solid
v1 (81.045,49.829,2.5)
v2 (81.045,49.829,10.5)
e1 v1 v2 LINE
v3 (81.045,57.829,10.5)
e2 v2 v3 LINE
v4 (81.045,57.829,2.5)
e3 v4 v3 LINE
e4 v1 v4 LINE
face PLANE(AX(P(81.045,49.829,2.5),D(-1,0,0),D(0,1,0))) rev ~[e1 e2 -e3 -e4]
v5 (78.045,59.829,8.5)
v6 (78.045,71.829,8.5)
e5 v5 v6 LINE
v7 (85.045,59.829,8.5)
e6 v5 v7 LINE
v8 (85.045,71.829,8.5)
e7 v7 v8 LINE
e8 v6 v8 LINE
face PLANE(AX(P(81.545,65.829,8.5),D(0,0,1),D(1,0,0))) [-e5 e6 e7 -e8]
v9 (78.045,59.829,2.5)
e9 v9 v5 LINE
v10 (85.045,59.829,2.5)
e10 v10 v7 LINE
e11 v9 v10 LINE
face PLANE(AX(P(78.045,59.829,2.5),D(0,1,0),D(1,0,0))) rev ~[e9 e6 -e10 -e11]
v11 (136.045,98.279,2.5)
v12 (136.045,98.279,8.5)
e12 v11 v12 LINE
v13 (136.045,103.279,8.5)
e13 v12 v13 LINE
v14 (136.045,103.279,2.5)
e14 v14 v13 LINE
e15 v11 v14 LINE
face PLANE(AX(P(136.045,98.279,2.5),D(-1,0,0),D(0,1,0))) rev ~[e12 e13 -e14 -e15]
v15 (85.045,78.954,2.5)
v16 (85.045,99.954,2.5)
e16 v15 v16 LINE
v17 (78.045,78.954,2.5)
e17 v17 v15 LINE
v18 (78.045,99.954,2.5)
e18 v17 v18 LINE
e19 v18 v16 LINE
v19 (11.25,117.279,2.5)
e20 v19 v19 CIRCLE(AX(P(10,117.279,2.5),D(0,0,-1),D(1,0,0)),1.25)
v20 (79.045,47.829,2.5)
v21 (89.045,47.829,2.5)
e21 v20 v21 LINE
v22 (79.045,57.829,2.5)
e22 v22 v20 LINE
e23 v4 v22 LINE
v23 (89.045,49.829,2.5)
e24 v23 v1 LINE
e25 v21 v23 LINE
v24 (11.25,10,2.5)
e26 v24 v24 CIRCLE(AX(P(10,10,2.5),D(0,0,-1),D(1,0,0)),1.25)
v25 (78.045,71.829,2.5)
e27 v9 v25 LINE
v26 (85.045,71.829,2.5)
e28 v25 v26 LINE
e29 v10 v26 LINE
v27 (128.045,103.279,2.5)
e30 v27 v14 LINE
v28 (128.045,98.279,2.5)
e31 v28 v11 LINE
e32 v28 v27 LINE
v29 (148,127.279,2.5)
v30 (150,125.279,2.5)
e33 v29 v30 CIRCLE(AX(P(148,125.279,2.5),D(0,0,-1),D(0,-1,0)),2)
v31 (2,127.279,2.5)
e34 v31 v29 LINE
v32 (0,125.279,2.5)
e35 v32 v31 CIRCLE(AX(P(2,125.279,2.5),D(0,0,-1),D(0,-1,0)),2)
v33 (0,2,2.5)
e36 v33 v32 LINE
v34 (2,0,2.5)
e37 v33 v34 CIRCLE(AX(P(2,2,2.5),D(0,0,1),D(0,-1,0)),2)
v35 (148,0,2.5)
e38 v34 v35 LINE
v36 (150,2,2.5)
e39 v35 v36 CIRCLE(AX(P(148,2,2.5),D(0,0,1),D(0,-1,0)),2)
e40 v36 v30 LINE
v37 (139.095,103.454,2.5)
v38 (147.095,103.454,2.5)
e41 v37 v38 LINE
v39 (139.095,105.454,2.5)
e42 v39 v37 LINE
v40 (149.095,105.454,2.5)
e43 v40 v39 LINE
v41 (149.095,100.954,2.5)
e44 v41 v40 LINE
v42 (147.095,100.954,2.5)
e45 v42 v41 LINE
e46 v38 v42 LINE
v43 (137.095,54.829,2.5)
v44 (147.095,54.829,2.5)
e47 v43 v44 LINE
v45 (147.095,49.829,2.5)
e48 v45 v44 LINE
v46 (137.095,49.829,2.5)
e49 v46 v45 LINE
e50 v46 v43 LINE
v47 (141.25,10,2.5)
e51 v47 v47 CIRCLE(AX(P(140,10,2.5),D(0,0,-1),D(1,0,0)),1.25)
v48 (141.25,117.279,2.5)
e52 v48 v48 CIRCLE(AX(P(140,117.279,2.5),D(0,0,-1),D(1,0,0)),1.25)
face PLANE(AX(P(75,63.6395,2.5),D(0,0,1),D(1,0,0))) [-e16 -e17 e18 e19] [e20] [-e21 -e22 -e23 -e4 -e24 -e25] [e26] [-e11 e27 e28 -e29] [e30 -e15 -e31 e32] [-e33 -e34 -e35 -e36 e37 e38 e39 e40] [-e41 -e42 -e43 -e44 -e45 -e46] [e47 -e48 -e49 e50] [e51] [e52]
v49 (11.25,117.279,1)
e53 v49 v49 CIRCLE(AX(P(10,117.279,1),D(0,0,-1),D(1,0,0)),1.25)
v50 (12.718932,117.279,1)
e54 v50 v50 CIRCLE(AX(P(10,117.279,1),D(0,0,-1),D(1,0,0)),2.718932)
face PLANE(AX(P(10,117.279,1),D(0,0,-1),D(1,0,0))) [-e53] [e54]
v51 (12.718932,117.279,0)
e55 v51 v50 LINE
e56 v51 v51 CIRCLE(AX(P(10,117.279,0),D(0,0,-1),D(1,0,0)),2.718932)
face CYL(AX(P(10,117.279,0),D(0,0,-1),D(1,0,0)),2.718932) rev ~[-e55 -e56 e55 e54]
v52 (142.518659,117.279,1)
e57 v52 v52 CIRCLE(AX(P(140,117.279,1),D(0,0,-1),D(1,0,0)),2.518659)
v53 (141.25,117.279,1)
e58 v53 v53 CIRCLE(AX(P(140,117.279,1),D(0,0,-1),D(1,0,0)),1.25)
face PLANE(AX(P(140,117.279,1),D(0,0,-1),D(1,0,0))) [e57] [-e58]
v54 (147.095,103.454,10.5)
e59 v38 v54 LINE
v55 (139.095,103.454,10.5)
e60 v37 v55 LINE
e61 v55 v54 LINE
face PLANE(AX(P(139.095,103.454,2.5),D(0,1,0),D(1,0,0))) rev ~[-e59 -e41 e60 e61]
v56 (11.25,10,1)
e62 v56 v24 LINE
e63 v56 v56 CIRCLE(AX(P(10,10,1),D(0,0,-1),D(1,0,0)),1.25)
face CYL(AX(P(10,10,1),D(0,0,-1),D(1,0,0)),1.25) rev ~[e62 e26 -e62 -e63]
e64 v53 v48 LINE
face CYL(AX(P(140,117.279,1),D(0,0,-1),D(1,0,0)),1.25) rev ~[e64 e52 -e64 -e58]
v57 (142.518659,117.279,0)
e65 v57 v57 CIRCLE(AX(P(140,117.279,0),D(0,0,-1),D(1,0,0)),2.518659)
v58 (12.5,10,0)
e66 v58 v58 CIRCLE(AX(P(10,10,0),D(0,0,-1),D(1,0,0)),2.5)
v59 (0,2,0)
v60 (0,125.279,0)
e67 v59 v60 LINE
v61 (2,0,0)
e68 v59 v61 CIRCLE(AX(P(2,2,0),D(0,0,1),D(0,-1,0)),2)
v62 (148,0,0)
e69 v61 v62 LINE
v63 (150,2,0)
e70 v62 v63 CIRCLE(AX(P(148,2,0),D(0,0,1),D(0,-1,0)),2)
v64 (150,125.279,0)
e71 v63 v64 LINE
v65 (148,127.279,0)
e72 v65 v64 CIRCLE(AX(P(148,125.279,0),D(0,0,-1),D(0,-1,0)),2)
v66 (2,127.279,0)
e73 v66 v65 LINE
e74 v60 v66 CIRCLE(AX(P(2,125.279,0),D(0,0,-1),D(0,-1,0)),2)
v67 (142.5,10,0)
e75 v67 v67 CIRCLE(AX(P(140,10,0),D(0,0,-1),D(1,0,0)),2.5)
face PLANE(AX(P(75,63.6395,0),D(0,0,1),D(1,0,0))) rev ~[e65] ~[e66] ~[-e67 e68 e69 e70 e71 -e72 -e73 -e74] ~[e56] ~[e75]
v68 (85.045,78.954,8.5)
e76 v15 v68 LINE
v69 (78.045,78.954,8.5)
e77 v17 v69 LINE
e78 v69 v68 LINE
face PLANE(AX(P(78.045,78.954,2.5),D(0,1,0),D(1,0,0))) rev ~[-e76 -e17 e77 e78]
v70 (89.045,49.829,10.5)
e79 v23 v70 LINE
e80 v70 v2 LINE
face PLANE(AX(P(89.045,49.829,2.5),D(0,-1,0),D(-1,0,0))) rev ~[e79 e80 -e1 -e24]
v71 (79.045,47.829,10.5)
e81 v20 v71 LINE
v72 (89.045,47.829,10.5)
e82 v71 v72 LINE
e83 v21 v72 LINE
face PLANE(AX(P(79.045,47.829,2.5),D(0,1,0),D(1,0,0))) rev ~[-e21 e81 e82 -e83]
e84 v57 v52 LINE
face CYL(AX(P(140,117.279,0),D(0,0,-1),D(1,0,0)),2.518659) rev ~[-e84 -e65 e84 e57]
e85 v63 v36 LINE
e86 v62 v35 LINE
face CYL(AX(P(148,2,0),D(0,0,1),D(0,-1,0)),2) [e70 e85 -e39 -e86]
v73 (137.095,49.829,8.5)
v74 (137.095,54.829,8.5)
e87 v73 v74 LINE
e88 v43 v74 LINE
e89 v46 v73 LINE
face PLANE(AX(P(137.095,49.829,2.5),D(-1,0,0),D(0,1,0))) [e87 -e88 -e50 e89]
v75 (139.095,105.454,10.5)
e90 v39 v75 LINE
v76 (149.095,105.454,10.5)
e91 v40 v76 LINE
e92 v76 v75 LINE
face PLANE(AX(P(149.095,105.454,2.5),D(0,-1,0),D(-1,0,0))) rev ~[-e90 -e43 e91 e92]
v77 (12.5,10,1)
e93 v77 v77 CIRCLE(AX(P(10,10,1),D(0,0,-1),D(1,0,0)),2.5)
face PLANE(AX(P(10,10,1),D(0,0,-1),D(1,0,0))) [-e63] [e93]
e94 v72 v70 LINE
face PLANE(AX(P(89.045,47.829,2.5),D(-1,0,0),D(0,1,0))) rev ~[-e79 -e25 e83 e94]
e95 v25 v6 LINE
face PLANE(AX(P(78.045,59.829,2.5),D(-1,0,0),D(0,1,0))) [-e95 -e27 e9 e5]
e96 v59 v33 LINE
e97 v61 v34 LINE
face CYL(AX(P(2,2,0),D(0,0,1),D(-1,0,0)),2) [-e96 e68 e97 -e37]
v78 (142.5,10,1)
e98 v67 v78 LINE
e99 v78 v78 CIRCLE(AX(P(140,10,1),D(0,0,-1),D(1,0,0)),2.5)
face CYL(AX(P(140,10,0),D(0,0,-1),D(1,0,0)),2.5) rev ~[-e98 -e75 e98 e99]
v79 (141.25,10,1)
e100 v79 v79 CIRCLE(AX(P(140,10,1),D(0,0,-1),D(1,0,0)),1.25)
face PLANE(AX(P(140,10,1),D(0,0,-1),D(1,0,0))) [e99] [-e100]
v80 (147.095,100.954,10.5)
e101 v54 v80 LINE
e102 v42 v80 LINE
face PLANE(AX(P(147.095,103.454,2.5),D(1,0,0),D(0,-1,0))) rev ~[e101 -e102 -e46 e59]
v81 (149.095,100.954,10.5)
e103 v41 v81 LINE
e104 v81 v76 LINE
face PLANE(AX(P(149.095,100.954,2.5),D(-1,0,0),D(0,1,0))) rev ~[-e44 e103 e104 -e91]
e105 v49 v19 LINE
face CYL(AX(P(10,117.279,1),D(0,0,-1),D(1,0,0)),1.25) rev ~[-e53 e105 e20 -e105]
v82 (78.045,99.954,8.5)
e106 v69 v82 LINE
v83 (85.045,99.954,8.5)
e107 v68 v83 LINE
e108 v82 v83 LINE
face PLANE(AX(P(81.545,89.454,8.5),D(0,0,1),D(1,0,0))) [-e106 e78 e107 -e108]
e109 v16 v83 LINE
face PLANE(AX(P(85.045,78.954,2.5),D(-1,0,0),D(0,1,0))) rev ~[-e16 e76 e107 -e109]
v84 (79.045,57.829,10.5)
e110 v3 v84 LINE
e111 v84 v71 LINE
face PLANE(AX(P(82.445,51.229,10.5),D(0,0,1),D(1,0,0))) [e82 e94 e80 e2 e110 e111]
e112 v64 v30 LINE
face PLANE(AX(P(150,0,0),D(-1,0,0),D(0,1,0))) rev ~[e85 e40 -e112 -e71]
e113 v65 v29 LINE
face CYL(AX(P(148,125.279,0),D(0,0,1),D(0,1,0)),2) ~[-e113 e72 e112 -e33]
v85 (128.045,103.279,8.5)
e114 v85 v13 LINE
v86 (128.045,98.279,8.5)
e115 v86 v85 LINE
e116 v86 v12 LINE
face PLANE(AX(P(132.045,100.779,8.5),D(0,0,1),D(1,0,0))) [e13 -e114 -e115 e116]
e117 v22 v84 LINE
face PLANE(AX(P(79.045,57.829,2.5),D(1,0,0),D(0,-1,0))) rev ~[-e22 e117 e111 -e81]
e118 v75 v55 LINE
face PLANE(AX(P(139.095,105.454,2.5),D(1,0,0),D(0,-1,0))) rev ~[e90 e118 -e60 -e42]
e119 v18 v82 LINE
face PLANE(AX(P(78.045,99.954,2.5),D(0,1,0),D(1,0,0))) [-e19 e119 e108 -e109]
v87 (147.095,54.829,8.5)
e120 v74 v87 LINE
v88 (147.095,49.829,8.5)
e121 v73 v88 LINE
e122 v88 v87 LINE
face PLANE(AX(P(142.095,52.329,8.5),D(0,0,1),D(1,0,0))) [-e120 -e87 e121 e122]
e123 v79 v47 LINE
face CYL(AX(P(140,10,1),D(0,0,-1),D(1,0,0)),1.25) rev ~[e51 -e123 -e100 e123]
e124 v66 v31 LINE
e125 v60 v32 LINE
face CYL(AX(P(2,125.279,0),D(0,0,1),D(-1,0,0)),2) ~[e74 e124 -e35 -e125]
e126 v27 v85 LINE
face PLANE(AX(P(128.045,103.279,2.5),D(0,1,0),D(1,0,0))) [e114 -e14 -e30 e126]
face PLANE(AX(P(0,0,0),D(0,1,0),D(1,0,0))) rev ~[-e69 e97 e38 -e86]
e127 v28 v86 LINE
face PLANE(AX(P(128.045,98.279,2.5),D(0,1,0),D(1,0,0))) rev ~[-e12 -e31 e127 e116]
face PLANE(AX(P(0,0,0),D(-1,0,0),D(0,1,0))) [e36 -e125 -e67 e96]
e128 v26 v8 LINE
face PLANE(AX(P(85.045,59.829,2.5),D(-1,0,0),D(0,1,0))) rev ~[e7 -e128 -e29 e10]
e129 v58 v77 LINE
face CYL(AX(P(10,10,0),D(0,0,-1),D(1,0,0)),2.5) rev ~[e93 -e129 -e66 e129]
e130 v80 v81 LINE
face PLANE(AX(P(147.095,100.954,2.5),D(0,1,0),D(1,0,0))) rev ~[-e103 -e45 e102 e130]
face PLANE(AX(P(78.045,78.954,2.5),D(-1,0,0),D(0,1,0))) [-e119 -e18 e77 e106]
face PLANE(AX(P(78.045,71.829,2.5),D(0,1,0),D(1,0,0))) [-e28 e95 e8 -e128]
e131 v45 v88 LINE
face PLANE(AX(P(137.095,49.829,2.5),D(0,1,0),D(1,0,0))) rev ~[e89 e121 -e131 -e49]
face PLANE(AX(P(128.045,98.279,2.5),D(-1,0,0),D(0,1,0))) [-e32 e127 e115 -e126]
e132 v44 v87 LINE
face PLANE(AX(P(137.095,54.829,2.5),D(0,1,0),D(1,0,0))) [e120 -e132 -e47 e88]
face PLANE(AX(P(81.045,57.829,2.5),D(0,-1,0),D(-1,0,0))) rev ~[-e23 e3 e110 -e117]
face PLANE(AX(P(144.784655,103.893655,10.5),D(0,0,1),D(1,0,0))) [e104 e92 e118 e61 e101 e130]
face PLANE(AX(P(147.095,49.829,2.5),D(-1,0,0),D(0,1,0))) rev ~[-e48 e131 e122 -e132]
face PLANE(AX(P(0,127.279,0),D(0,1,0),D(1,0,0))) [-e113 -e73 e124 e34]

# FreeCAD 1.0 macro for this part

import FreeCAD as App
import Part
import Sketcher
from FreeCAD import Vector


def edges_at(feature, points):
    """Names of the edges that pass closest to the given points."""
    edges = feature.Shape.Edges
    near = lambda p: min(range(len(edges)), key=lambda i: edges[i].distToShape(Part.Vertex(*p))[0])
    return sorted({f"Edge{near(p) + 1}" for p in points})


def add_polygon(sketch, points):
    """Adds a closed chain of lines whose ends are joined by coincident constraints."""
    first, n = sketch.GeometryCount, len(points)
    for a, b in zip(points, points[1:] + points[:1]):
        sketch.addGeometry(Part.LineSegment(App.Vector(*a, 0), App.Vector(*b, 0)), False)
    for i in range(n):
        sketch.addConstraint(Sketcher.Constraint("Coincident", first + i, 2, first + (i + 1) % n, 1))

doc = App.newDocument("Part")
params = doc.addObject("Spreadsheet::Sheet", "Params")
for row, (alias, value) in enumerate([
    ("sketch1_width", "150 mm"),
    ("pad1_length", "2.5 mm"),
    ("sketch2_diameter", "5 mm"),
    ("pocket1_length", "1 mm"),
    ("sketch3_diameter", "2.5 mm"),
    ("fillet_radius", "2 mm"),
    ("sketch4_width", "8 mm"),
    ("sketch4_width2", "2 mm"),
    ("sketch4_height", "2.5 mm"),
    ("pad2_length", "8 mm"),
    ("sketch5_width", "7 mm"),
    ("sketch5_width2", "8 mm"),
    ("sketch5_height", "12 mm"),
    ("sketch5_height2", "21 mm"),
    ("sketch5_height3", "5 mm"),
    ("pad3_length", "6 mm"),
    ("sketch6_width", "10 mm"),
    ("sketch6_height", "5 mm"),
    ("pad4_length", "6 mm"),
], start=1):
    params.set(f"A{row}", alias)
    params.set(f"B{row}", "=" + value)
    params.setAlias(f"B{row}", alias)

body = doc.addObject("PartDesign::Body", "Body")

# Sketch on XY plane
sketch1 = doc.addObject("Sketcher::SketchObject", "Sketch")
body.addObject(sketch1)
sketch1.AttachmentSupport = (doc.XY_Plane, [""])
sketch1.MapMode = "FlatFace"
add_polygon(sketch1, [(0, 127), (0, 0), (150, 0), (150, 127)])  # lines 0-3
sketch1.addConstraint(Sketcher.Constraint("Vertical", 0))
sketch1.addConstraint(Sketcher.Constraint("Horizontal", 1))
sketch1.addConstraint(Sketcher.Constraint("Vertical", 2))
sketch1.addConstraint(Sketcher.Constraint("Horizontal", 3))
sketch1.addConstraint(Sketcher.Constraint("Coincident", 0, 2, -1, 1))
sketch1.addConstraint(Sketcher.Constraint("DistanceX", 1, 1, 1, 2, 150.0))
sketch1.addConstraint(Sketcher.Constraint("DistanceY", 0, 2, 0, 1, 127.279))
sketch1.setExpression("Constraints[9]", "Params.sketch1_width")
pad1 = doc.addObject("PartDesign::Pad", "Pad")
body.addObject(pad1)
pad1.Profile = sketch1
pad1.setExpression("Length", "Params.pad1_length")

# Sketch on XY plane
sketch2 = doc.addObject("Sketcher::SketchObject", "Sketch001")
body.addObject(sketch2)
sketch2.AttachmentSupport = (doc.XY_Plane, [""])
sketch2.MapMode = "FlatFace"
sketch2.addGeometry(Part.Circle(Vector(10, 10, 0), Vector(0, 0, 1), 2.5), False)
sketch2.addGeometry(Part.Circle(Vector(140, 10, 0), Vector(0, 0, 1), 2.5), False)
sketch2.addGeometry(Part.Circle(Vector(10, 117.3, 0), Vector(0, 0, 1), 2.7), False)
sketch2.addGeometry(Part.Circle(Vector(140, 117.3, 0), Vector(0, 0, 1), 2.5), False)
sketch2.addConstraint(Sketcher.Constraint("Equal", 0, 1))
sketch2.addConstraint(Sketcher.Constraint("Horizontal", 0, 3, 1, 3))
sketch2.addConstraint(Sketcher.Constraint("Horizontal", 2, 3, 3, 3))
sketch2.addConstraint(Sketcher.Constraint("Vertical", 0, 3, 2, 3))
sketch2.addConstraint(Sketcher.Constraint("Vertical", 1, 3, 3, 3))
sketch2.addConstraint(Sketcher.Constraint("Diameter", 0, 5.0))
sketch2.addConstraint(Sketcher.Constraint("DistanceX", -1, 1, 0, 3, 10.0))
sketch2.addConstraint(Sketcher.Constraint("DistanceY", -1, 1, 0, 3, 10.0))
sketch2.addConstraint(Sketcher.Constraint("DistanceX", -1, 1, 1, 3, 140.0))
sketch2.addConstraint(Sketcher.Constraint("Diameter", 2, 5.437864))
sketch2.addConstraint(Sketcher.Constraint("Diameter", 3, 5.037318))
sketch2.addConstraint(Sketcher.Constraint("DistanceY", -1, 1, 2, 3, 117.279))
sketch2.setExpression("Constraints[5]", "Params.sketch2_diameter")
pocket1 = doc.addObject("PartDesign::Pocket", "Pocket")
body.addObject(pocket1)
pocket1.Profile = sketch2
pocket1.setExpression("Length", "Params.pocket1_length")
pocket1.Reversed = True

# Sketch on XY plane
sketch3 = doc.addObject("Sketcher::SketchObject", "Sketch002")
body.addObject(sketch3)
sketch3.AttachmentSupport = (doc.XY_Plane, [""])
sketch3.MapMode = "FlatFace"
sketch3.AttachmentOffset = App.Placement(Vector(0, 0, 1), App.Rotation())
sketch3.addGeometry(Part.Circle(Vector(10, 10, 0), Vector(0, 0, 1), 1.2), False)
sketch3.addGeometry(Part.Circle(Vector(10, 117.3, 0), Vector(0, 0, 1), 1.2), False)
sketch3.addGeometry(Part.Circle(Vector(140, 117.3, 0), Vector(0, 0, 1), 1.2), False)
sketch3.addGeometry(Part.Circle(Vector(140, 10, 0), Vector(0, 0, 1), 1.2), False)
sketch3.addConstraint(Sketcher.Constraint("Equal", 0, 1))
sketch3.addConstraint(Sketcher.Constraint("Equal", 1, 2))
sketch3.addConstraint(Sketcher.Constraint("Equal", 2, 3))
sketch3.addConstraint(Sketcher.Constraint("Horizontal", 1, 3, 2, 3))
sketch3.addConstraint(Sketcher.Constraint("Horizontal", 0, 3, 3, 3))
sketch3.addConstraint(Sketcher.Constraint("Vertical", 0, 3, 1, 3))
sketch3.addConstraint(Sketcher.Constraint("Vertical", 2, 3, 3, 3))
sketch3.addConstraint(Sketcher.Constraint("Diameter", 0, 2.5))
sketch3.addConstraint(Sketcher.Constraint("DistanceX", -1, 1, 0, 3, 10.0))
sketch3.addConstraint(Sketcher.Constraint("DistanceY", -1, 1, 0, 3, 10.0))
sketch3.addConstraint(Sketcher.Constraint("DistanceX", -1, 1, 2, 3, 140.0))
sketch3.addConstraint(Sketcher.Constraint("DistanceY", -1, 1, 1, 3, 117.279))
sketch3.setExpression("Constraints[7]", "Params.sketch3_diameter")
pocket2 = doc.addObject("PartDesign::Pocket", "Pocket001")
body.addObject(pocket2)
pocket2.Profile = sketch3
pocket2.Type = "ThroughAll"
pocket2.Reversed = True
doc.recompute()

fillet = doc.addObject("PartDesign::Fillet", "Fillet")
body.addObject(fillet)
fillet.Base = (pocket2, edges_at(pocket2, [
    (150, 0, 1.25),
    (0, 0, 1.25),
    (150, 127.279, 1.25),
    (0, 127.279, 1.25),
]))
fillet.setExpression("Radius", "Params.fillet_radius")

# Sketch on XY plane
sketch4 = doc.addObject("Sketcher::SketchObject", "Sketch003")
body.addObject(sketch4)
sketch4.AttachmentSupport = (doc.XY_Plane, [""])
sketch4.MapMode = "FlatFace"
sketch4.AttachmentOffset = App.Placement(Vector(0, 0, 2.5), App.Rotation())
add_polygon(sketch4, [(89, 49.8), (81, 49.8), (81, 57.8), (79, 57.8), (79, 47.8), (89, 47.8)])  # lines 0-5
add_polygon(sketch4, [(139.1, 103.5), (147.1, 103.5), (147.1, 101), (149.1, 101), (149.1, 105.5), (139.1, 105.5)])  # lines 6-11
sketch4.addConstraint(Sketcher.Constraint("Horizontal", 0))
sketch4.addConstraint(Sketcher.Constraint("Vertical", 1))
sketch4.addConstraint(Sketcher.Constraint("Horizontal", 2))
sketch4.addConstraint(Sketcher.Constraint("Vertical", 3))
sketch4.addConstraint(Sketcher.Constraint("Horizontal", 4))
sketch4.addConstraint(Sketcher.Constraint("Vertical", 5))
sketch4.addConstraint(Sketcher.Constraint("Horizontal", 6))
sketch4.addConstraint(Sketcher.Constraint("Vertical", 7))
sketch4.addConstraint(Sketcher.Constraint("Horizontal", 8))
sketch4.addConstraint(Sketcher.Constraint("Vertical", 9))
sketch4.addConstraint(Sketcher.Constraint("Horizontal", 10))
sketch4.addConstraint(Sketcher.Constraint("Vertical", 11))
sketch4.addConstraint(Sketcher.Constraint("Equal", 0, 6))
sketch4.addConstraint(Sketcher.Constraint("Equal", 2, 8))
sketch4.addConstraint(Sketcher.Constraint("Equal", 6, 1))
sketch4.addConstraint(Sketcher.Constraint("Equal", 10, 3))
sketch4.addConstraint(Sketcher.Constraint("Equal", 5, 11))
sketch4.addConstraint(Sketcher.Constraint("DistanceX", 0, 2, 0, 1, 8.0))
sketch4.addConstraint(Sketcher.Constraint("DistanceX", 2, 2, 2, 1, 2.0))
sketch4.addConstraint(Sketcher.Constraint("DistanceY", 7, 2, 7, 1, 2.5))
sketch4.addConstraint(Sketcher.Constraint("DistanceX", 5, 2, 6, 2, 58.05))
sketch4.addConstraint(Sketcher.Constraint("DistanceX", -1, 1, 0, 2, 81.045))
sketch4.addConstraint(Sketcher.Constraint("DistanceY", -1, 1, 0, 2, 49.829))
sketch4.addConstraint(Sketcher.Constraint("DistanceY", -1, 1, 6, 2, 103.454))
sketch4.setExpression("Constraints[29]", "Params.sketch4_width")
sketch4.setExpression("Constraints[30]", "Params.sketch4_width2")
sketch4.setExpression("Constraints[31]", "Params.sketch4_height")
pad2 = doc.addObject("PartDesign::Pad", "Pad001")
body.addObject(pad2)
pad2.Profile = sketch4
pad2.setExpression("Length", "Params.pad2_length")

# Sketch on XY plane
sketch5 = doc.addObject("Sketcher::SketchObject", "Sketch004")
body.addObject(sketch5)
sketch5.AttachmentSupport = (doc.XY_Plane, [""])
sketch5.MapMode = "FlatFace"
sketch5.AttachmentOffset = App.Placement(Vector(0, 0, 2.5), App.Rotation())
add_polygon(sketch5, [(78, 72), (78, 60), (85, 60), (85, 72)])  # lines 0-3
add_polygon(sketch5, [(78, 100), (78, 79), (85, 79), (85, 100)])  # lines 4-7
add_polygon(sketch5, [(128, 103), (128, 98), (136, 98), (136, 103)])  # lines 8-11
sketch5.addConstraint(Sketcher.Constraint("Vertical", 0))
sketch5.addConstraint(Sketcher.Constraint("Horizontal", 1))
sketch5.addConstraint(Sketcher.Constraint("Vertical", 2))
sketch5.addConstraint(Sketcher.Constraint("Horizontal", 3))
sketch5.addConstraint(Sketcher.Constraint("Vertical", 4))
sketch5.addConstraint(Sketcher.Constraint("Horizontal", 5))
sketch5.addConstraint(Sketcher.Constraint("Vertical", 6))
sketch5.addConstraint(Sketcher.Constraint("Horizontal", 7))
sketch5.addConstraint(Sketcher.Constraint("Vertical", 8))
sketch5.addConstraint(Sketcher.Constraint("Horizontal", 9))
sketch5.addConstraint(Sketcher.Constraint("Vertical", 10))
sketch5.addConstraint(Sketcher.Constraint("Horizontal", 11))
sketch5.addConstraint(Sketcher.Constraint("Vertical", 3, 2, 4, 2))
sketch5.addConstraint(Sketcher.Constraint("Vertical", 2, 2, 5, 2))
sketch5.addConstraint(Sketcher.Constraint("DistanceX", 1, 1, 1, 2, 7.0))
sketch5.addConstraint(Sketcher.Constraint("DistanceX", 9, 1, 9, 2, 8.0))
sketch5.addConstraint(Sketcher.Constraint("DistanceY", 0, 2, 0, 1, 12.0))
sketch5.addConstraint(Sketcher.Constraint("DistanceY", 4, 2, 4, 1, 21.0))
sketch5.addConstraint(Sketcher.Constraint("DistanceY", 8, 2, 8, 1, 5.0))
sketch5.addConstraint(Sketcher.Constraint("DistanceX", 6, 2, 8, 2, 43.0))
sketch5.addConstraint(Sketcher.Constraint("DistanceY", 2, 2, 8, 2, 26.45))
sketch5.addConstraint(Sketcher.Constraint("DistanceX", -1, 1, 0, 2, 78.045))
sketch5.addConstraint(Sketcher.Constraint("DistanceY", -1, 1, 0, 2, 59.829))
sketch5.addConstraint(Sketcher.Constraint("DistanceY", -1, 1, 4, 2, 78.954))
sketch5.setExpression("Constraints[26]", "Params.sketch5_width")
sketch5.setExpression("Constraints[27]", "Params.sketch5_width2")
sketch5.setExpression("Constraints[28]", "Params.sketch5_height")
sketch5.setExpression("Constraints[29]", "Params.sketch5_height2")
sketch5.setExpression("Constraints[30]", "Params.sketch5_height3")
pad3 = doc.addObject("PartDesign::Pad", "Pad002")
body.addObject(pad3)
pad3.Profile = sketch5
pad3.setExpression("Length", "Params.pad3_length")

# Sketch on XY plane
sketch6 = doc.addObject("Sketcher::SketchObject", "Sketch005")
body.addObject(sketch6)
sketch6.AttachmentSupport = (doc.XY_Plane, [""])
sketch6.MapMode = "FlatFace"
sketch6.AttachmentOffset = App.Placement(Vector(0, 0, 2.5), App.Rotation())
add_polygon(sketch6, [(137, 55), (137, 50), (147, 50), (147, 55)])  # lines 0-3
sketch6.addConstraint(Sketcher.Constraint("Vertical", 0))
sketch6.addConstraint(Sketcher.Constraint("Horizontal", 1))
sketch6.addConstraint(Sketcher.Constraint("Vertical", 2))
sketch6.addConstraint(Sketcher.Constraint("Horizontal", 3))
sketch6.addConstraint(Sketcher.Constraint("DistanceX", 1, 1, 1, 2, 10.0))
sketch6.addConstraint(Sketcher.Constraint("DistanceY", 0, 2, 0, 1, 5.0))
sketch6.addConstraint(Sketcher.Constraint("DistanceX", -1, 1, 0, 2, 137.095))
sketch6.addConstraint(Sketcher.Constraint("DistanceY", -1, 1, 0, 2, 49.829))
sketch6.setExpression("Constraints[8]", "Params.sketch6_width")
sketch6.setExpression("Constraints[9]", "Params.sketch6_height")
pad4 = doc.addObject("PartDesign::Pad", "Pad003")
body.addObject(pad4)
pad4.Profile = sketch6
pad4.setExpression("Length", "Params.pad4_length")

doc.recompute()
